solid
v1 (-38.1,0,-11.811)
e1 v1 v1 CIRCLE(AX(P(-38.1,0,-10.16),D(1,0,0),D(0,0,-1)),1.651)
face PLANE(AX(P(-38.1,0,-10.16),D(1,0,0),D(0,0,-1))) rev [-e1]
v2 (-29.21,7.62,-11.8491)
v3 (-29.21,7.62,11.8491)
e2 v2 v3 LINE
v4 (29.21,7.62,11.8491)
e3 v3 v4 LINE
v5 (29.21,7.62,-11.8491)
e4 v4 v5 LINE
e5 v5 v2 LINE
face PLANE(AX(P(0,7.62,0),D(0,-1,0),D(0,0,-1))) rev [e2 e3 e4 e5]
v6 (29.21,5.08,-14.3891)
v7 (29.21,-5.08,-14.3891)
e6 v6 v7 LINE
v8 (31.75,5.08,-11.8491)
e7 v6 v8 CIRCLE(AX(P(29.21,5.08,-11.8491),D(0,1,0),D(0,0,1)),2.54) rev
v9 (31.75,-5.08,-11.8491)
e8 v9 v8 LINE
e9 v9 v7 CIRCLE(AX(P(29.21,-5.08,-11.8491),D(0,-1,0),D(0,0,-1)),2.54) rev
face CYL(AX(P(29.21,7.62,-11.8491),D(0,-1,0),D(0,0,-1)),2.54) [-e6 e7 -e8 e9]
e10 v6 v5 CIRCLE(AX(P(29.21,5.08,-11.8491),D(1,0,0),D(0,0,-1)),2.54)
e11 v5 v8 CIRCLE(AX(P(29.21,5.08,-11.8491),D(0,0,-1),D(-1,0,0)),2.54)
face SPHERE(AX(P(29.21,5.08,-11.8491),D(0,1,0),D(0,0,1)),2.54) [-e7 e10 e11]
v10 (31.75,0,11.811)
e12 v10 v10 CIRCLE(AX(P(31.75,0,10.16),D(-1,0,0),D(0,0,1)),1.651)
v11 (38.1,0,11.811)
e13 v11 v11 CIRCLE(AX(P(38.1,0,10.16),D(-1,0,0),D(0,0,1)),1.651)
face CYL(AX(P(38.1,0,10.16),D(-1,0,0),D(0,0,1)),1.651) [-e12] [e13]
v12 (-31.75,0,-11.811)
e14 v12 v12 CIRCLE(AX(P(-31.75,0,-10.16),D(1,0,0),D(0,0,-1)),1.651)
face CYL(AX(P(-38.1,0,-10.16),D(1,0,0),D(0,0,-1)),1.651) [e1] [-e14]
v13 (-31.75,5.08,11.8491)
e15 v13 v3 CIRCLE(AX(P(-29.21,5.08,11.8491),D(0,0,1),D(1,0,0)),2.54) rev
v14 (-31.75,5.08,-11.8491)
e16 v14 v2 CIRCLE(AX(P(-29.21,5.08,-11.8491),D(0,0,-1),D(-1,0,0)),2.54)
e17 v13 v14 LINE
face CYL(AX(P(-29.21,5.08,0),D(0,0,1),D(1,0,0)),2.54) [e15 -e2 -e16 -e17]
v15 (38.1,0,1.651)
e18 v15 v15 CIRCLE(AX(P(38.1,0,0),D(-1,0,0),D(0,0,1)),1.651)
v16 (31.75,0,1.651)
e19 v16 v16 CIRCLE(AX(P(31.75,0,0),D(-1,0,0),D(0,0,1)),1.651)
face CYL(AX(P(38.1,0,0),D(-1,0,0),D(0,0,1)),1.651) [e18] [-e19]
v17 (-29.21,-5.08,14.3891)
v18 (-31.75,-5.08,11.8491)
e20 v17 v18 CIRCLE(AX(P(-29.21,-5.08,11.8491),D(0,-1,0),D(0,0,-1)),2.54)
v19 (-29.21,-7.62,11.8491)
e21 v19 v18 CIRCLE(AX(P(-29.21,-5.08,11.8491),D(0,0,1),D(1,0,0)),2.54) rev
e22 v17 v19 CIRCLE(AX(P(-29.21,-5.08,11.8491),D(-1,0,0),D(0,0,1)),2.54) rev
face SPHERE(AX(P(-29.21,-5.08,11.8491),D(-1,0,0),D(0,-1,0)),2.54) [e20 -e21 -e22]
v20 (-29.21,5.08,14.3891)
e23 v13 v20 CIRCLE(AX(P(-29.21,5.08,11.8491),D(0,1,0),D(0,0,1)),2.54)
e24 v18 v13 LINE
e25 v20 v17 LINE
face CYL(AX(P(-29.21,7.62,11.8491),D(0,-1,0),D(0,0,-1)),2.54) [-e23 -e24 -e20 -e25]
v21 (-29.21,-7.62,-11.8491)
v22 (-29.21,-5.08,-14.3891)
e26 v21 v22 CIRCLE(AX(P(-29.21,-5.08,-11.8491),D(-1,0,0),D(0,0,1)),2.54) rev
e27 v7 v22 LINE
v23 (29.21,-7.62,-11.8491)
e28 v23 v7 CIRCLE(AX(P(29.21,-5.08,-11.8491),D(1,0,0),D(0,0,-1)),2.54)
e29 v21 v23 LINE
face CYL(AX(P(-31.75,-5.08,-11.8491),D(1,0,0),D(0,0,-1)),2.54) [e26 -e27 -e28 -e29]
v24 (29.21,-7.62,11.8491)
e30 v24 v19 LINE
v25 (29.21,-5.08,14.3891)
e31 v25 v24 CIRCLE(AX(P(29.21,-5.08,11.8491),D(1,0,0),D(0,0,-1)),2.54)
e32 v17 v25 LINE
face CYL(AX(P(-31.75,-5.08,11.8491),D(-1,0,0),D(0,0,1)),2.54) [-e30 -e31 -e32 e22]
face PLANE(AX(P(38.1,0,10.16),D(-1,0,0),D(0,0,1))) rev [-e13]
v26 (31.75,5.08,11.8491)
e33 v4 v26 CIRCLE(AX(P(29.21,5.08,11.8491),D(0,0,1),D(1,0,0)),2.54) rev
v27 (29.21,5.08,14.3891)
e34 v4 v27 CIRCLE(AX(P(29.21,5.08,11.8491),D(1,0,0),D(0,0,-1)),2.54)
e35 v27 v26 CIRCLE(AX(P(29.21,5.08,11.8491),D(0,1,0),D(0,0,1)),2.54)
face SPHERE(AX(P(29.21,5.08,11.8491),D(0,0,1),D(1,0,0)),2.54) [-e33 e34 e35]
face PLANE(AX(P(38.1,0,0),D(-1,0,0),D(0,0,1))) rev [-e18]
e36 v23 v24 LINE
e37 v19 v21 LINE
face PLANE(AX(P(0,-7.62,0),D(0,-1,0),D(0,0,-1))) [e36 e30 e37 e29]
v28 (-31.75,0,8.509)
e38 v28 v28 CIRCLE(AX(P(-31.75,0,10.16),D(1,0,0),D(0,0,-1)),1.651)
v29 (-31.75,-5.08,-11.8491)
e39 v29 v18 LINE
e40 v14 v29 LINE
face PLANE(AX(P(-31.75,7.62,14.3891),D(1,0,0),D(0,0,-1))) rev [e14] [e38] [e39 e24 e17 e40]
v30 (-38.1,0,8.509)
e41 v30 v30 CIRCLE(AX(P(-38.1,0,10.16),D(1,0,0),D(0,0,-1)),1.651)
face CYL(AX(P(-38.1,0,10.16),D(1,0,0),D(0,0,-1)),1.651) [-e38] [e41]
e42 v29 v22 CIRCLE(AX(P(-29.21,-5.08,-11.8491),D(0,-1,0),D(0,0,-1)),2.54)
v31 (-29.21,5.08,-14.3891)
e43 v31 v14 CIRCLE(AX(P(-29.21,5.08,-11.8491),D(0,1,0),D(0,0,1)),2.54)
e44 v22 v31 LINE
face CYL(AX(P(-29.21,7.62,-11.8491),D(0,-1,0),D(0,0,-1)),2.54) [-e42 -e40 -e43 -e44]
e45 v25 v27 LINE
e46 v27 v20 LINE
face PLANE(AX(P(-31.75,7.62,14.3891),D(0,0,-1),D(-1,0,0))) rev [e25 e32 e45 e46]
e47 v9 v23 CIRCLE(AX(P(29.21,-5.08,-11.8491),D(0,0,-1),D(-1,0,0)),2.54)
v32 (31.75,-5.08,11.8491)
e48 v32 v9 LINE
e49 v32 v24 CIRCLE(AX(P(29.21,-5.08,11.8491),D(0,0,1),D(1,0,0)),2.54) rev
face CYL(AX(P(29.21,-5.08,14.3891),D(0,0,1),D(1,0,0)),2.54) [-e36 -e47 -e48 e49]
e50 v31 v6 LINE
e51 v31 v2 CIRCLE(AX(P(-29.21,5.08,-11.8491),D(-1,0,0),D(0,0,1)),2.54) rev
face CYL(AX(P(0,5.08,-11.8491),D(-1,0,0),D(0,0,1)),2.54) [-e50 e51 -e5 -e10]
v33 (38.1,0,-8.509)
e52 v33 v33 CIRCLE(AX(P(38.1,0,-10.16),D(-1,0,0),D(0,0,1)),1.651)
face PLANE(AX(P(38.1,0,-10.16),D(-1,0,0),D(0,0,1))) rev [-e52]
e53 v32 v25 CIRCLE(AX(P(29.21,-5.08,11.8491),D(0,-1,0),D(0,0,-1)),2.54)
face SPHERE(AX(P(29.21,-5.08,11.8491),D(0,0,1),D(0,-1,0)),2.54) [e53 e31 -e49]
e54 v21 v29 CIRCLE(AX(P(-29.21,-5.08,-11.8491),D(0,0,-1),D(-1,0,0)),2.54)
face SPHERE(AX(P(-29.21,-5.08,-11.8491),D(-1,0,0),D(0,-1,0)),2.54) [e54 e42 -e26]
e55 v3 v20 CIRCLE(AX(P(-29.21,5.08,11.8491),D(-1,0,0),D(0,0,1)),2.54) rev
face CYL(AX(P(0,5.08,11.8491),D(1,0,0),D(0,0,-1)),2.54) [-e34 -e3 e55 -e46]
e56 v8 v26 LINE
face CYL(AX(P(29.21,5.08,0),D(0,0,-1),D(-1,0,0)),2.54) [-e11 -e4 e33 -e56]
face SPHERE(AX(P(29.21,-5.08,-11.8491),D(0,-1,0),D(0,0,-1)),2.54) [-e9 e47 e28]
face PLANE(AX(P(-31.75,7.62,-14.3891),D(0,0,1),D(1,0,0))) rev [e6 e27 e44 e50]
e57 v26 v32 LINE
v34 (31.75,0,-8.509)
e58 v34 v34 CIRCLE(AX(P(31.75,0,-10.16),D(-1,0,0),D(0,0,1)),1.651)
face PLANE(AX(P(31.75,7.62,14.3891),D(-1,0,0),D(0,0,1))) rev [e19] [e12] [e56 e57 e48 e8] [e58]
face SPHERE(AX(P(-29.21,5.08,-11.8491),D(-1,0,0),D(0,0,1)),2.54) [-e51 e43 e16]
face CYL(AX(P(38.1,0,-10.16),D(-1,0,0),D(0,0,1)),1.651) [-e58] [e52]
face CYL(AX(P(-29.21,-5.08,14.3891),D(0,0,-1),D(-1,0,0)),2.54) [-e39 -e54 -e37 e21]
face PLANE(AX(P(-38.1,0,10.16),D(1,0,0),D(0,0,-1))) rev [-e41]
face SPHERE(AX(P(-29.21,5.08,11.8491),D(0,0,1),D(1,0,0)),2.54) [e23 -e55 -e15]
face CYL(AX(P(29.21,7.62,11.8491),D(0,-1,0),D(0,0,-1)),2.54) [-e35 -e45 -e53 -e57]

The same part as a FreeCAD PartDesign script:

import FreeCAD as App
import Part
import Sketcher
from FreeCAD import Vector
Q = App.Units.Quantity


def add_polygon(sketch, points):
    """Adds a closed chain of lines whose ends are joined by coincident constraints."""
    first, n = sketch.GeometryCount, len(points)
    for a, b in zip(points, points[1:] + points[:1]):
        sketch.addGeometry(Part.LineSegment(App.Vector(*a, 0), App.Vector(*b, 0)), False)
    for i in range(n):
        sketch.addConstraint(Sketcher.Constraint("Coincident", first + i, 2, first + (i + 1) % n, 1))

doc = App.newDocument("Part")
body = doc.addObject("PartDesign::Body", "Body")

sketch1 = body.newObject("Sketcher::SketchObject", "Sketch")
sketch1.AttachmentSupport = (doc.getObject("XZ_Plane"), [""])
sketch1.MapMode = "FlatFace"
add_polygon(sketch1, [(-32, -14), (-32, 14), (32, 14), (32, -14)])
sketch1.addConstraint([
    Sketcher.Constraint("Vertical", 0),
    Sketcher.Constraint("Horizontal", 1),
    Sketcher.Constraint("Vertical", 2),
    Sketcher.Constraint("Horizontal", 3),
    Sketcher.Constraint("Symmetric", 0, 2, 2, 2, -1, 1),
    Sketcher.Constraint("DistanceX", 1, 1, 1, 2, Q("2.5 in")),
    Sketcher.Constraint("DistanceY", 0, 1, 0, 2, Q("1.133 in")),
])
pad1 = body.newObject("PartDesign::Pad", "Pad")
pad1.Profile = sketch1
pad1.Length = Q("0.6 in")
pad1.Midplane = True
doc.recompute()

fillet = body.newObject("PartDesign::Fillet", "Fillet")
fillet.Base = (pad1, ["Edge1"])
fillet.UseAllEdges = True
fillet.Radius = Q("0.1 in")

sketch2 = body.newObject("Sketcher::SketchObject", "Sketch001")
sketch2.AttachmentSupport = (doc.getObject("YZ_Plane"), [""])
sketch2.MapMode = "FlatFace"
sketch2.AttachmentOffset = App.Placement(Vector(0, 0, 1.25 * 25.4), App.Rotation())
sketch2.addGeometry([
    Part.Circle(Vector(0, 0, 0), Vector(0, 0, 1), 1.7),
    Part.Circle(Vector(0, -10.2, 0), Vector(0, 0, 1), 1.7),
    Part.Circle(Vector(0, 10.2, 0), Vector(0, 0, 1), 1.7),
], False)
sketch2.addConstraint([
    Sketcher.Constraint("Coincident", 0, 3, -1, 1),
    Sketcher.Constraint("Equal", 0, 1),
    Sketcher.Constraint("Equal", 1, 2),
    Sketcher.Constraint("Symmetric", 1, 3, 2, 3, -1, 1),
    Sketcher.Constraint("PointOnObject", 1, 3, -2),
    Sketcher.Constraint("Diameter", 0, Q("0.13 in")),
    Sketcher.Constraint("DistanceY", 1, 3, -1, 1, Q("0.4 in")),
])
pad2 = body.newObject("PartDesign::Pad", "Pad001")
pad2.Profile = sketch2
pad2.Length = Q("0.25 in")

sketch3 = body.newObject("Sketcher::SketchObject", "Sketch002")
sketch3.AttachmentSupport = (doc.getObject("YZ_Plane"), [""])
sketch3.MapMode = "FlatFace"
sketch3.AttachmentOffset = App.Placement(Vector(0, 0, -1.25 * 25.4), App.Rotation())
sketch3.addGeometry([
    Part.Circle(Vector(0, -10.2, 0), Vector(0, 0, 1), 1.7),
    Part.Circle(Vector(0, 10.2, 0), Vector(0, 0, 1), 1.7),
], False)
sketch3.addConstraint([
    Sketcher.Constraint("Equal", 0, 1),
    Sketcher.Constraint("Symmetric", 0, 3, 1, 3, -1, 1),
    Sketcher.Constraint("PointOnObject", 0, 3, -2),
    Sketcher.Constraint("Diameter", 0, Q("0.13 in")),
    Sketcher.Constraint("DistanceY", 0, 3, -1, 1, Q("0.4 in")),
])
pad3 = body.newObject("PartDesign::Pad", "Pad002")
pad3.Profile = sketch3
pad3.Length = Q("0.25 in")
pad3.Reversed = True

doc.recompute()
